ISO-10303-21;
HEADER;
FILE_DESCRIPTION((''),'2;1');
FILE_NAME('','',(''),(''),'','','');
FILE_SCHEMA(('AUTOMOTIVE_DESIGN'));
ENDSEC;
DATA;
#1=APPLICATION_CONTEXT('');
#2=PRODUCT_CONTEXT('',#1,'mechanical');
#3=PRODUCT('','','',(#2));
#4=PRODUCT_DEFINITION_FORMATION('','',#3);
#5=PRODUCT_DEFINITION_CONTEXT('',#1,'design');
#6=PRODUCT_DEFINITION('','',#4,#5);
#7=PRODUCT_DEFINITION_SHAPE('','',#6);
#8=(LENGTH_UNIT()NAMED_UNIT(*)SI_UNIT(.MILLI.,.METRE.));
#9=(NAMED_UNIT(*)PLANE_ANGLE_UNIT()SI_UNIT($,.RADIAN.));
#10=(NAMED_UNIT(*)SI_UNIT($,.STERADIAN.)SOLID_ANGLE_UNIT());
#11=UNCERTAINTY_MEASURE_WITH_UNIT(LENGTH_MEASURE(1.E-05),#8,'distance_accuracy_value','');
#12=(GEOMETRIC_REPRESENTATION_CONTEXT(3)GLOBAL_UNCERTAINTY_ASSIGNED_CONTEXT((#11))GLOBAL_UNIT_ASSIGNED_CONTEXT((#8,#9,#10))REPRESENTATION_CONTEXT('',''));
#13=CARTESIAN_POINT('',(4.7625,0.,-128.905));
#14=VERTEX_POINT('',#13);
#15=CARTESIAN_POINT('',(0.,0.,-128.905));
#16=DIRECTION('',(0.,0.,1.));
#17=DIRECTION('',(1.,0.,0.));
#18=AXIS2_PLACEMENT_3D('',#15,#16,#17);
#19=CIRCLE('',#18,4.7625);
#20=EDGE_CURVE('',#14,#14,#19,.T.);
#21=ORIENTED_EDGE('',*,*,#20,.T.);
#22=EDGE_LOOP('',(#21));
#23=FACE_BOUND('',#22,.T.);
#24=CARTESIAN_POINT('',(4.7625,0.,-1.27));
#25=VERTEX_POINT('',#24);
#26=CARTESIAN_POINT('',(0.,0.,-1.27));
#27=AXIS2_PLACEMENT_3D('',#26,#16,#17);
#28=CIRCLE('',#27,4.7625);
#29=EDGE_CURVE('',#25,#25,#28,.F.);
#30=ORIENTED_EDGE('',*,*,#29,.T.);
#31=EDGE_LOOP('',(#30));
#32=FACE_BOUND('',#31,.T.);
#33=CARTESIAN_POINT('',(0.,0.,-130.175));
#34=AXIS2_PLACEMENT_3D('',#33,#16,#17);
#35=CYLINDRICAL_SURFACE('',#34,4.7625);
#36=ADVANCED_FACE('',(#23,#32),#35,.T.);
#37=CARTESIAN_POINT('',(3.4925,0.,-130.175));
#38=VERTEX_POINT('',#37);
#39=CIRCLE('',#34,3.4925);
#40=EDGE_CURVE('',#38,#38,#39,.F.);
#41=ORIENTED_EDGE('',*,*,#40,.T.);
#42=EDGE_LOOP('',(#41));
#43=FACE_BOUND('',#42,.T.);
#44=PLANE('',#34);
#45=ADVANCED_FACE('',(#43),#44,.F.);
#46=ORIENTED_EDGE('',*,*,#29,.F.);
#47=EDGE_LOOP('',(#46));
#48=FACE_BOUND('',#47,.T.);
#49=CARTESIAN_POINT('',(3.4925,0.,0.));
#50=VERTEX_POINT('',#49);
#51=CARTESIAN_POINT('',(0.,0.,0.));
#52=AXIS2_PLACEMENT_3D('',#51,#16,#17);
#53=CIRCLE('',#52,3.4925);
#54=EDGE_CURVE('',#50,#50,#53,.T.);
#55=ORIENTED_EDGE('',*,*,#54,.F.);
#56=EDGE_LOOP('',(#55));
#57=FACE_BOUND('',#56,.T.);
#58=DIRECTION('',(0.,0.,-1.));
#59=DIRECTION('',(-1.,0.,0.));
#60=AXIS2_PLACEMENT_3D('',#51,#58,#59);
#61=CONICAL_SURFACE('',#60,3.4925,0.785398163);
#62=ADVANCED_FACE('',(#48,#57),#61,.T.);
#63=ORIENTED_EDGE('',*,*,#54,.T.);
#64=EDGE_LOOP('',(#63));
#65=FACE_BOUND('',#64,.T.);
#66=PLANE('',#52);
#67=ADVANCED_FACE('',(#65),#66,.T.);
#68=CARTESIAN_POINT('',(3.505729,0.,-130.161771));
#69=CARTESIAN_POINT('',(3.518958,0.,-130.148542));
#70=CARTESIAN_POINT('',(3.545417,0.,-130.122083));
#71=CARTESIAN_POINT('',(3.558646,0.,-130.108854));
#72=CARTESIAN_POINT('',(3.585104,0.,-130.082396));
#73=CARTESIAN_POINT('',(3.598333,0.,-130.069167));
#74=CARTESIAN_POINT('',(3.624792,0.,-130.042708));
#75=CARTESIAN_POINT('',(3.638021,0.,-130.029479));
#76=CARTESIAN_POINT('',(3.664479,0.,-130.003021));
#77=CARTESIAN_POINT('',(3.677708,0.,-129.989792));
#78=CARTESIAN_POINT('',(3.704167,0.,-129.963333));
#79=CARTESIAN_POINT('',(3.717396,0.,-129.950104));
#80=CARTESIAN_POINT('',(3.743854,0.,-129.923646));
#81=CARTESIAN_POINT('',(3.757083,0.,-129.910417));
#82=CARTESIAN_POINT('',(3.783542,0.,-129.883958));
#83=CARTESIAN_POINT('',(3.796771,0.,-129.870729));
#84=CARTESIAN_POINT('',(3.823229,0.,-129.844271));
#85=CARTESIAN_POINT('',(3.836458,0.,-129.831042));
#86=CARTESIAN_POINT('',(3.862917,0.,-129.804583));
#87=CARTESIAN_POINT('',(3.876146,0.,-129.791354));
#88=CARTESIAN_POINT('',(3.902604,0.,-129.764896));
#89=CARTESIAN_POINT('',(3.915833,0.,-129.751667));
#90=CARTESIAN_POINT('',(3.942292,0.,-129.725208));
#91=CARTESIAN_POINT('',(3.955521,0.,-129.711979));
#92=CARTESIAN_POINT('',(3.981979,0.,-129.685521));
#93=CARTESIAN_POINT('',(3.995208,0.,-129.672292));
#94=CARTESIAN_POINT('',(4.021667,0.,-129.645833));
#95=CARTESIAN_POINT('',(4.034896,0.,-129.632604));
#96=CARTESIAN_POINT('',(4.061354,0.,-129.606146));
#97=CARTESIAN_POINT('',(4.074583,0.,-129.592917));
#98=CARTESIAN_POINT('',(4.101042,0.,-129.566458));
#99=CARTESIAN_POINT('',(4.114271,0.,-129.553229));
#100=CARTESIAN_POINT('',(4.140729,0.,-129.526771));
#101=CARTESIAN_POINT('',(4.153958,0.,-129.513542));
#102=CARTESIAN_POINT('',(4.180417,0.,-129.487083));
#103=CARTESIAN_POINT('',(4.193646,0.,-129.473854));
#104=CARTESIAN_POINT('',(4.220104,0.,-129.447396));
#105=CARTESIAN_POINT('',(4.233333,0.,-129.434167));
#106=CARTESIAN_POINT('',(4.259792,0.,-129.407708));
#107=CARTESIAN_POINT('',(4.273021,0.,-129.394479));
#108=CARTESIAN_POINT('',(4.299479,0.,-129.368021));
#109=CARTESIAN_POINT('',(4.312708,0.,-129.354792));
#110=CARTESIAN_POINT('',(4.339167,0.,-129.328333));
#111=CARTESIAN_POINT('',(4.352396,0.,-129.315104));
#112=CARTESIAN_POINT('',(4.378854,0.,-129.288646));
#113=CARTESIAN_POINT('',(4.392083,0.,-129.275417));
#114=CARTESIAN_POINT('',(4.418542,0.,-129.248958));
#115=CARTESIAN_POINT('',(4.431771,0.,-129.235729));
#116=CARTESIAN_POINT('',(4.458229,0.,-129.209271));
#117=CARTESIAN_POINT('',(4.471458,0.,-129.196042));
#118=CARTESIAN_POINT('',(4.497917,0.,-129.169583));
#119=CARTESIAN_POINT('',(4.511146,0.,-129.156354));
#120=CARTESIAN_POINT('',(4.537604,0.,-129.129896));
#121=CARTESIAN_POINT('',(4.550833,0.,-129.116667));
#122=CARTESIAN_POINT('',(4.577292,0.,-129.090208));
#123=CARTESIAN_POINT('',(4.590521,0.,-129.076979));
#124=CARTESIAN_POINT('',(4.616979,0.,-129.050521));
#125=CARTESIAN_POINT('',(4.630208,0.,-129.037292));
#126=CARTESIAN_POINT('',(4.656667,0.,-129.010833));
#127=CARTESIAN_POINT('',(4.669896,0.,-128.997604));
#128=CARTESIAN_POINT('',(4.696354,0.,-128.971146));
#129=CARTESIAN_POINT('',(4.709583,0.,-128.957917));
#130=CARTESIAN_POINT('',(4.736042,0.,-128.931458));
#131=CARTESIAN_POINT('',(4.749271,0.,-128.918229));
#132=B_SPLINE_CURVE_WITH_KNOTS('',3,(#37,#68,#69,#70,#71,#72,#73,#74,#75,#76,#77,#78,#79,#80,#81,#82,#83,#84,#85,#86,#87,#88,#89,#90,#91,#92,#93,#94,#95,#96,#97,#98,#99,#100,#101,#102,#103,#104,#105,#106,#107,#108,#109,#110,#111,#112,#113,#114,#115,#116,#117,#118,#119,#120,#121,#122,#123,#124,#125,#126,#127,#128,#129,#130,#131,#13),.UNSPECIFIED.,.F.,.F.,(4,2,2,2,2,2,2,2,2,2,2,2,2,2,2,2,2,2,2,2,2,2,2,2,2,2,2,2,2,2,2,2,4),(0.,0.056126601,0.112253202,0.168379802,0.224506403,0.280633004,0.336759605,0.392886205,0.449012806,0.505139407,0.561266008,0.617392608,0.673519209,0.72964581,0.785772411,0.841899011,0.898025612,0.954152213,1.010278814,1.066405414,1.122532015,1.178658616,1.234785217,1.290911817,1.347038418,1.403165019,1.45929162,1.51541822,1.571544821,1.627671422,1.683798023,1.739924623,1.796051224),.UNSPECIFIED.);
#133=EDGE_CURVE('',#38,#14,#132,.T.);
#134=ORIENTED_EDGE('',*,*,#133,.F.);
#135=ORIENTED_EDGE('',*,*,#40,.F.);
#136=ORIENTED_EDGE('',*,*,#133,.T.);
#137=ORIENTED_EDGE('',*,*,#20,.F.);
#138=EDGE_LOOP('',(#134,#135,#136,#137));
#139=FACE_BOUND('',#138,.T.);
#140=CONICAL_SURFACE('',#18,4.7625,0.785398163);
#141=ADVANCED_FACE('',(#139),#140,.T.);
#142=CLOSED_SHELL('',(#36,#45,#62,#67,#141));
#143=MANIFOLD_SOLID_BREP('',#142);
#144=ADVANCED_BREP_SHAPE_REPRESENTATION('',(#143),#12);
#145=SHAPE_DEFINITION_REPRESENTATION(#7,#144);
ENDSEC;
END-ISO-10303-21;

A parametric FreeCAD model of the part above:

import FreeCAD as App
import Part
import Sketcher
from FreeCAD import Vector
Q = App.Units.Quantity


def edges_at(feature, points):
    """Names of the edges that pass closest to the given points."""
    edges = feature.Shape.Edges
    near = lambda p: min(range(len(edges)), key=lambda i: edges[i].distToShape(Part.Vertex(*p))[0])
    return sorted({f"Edge{near(p) + 1}" for p in points})

doc = App.newDocument("Part")
body = doc.addObject("PartDesign::Body", "Body")

# Sketch on XY plane
sketch1 = body.newObject("Sketcher::SketchObject", "Sketch")
sketch1.AttachmentSupport = (doc.getObject("XY_Plane"), [""])
sketch1.MapMode = "FlatFace"
sketch1.addGeometry(Part.Circle(Vector(0, 0, 0), Vector(0, 0, 1), 4.8), False)
sketch1.addConstraint([
    Sketcher.Constraint("Coincident", 0, 3, -1, 1),
    Sketcher.Constraint("Diameter", 0, Q("0.375 in")),
])
pad1 = body.newObject("PartDesign::Pad", "Pad")
pad1.Profile = sketch1
pad1.Length = Q("5.125 in")
pad1.Reversed = True
doc.recompute()

chamfer = body.newObject("PartDesign::Chamfer", "Chamfer")
chamfer.Base = (pad1, edges_at(pad1, [(-4.763, 0, 0), (-4.763, 0, -130.175)]))
chamfer.Size = Q("0.05 in")

doc.recompute()
